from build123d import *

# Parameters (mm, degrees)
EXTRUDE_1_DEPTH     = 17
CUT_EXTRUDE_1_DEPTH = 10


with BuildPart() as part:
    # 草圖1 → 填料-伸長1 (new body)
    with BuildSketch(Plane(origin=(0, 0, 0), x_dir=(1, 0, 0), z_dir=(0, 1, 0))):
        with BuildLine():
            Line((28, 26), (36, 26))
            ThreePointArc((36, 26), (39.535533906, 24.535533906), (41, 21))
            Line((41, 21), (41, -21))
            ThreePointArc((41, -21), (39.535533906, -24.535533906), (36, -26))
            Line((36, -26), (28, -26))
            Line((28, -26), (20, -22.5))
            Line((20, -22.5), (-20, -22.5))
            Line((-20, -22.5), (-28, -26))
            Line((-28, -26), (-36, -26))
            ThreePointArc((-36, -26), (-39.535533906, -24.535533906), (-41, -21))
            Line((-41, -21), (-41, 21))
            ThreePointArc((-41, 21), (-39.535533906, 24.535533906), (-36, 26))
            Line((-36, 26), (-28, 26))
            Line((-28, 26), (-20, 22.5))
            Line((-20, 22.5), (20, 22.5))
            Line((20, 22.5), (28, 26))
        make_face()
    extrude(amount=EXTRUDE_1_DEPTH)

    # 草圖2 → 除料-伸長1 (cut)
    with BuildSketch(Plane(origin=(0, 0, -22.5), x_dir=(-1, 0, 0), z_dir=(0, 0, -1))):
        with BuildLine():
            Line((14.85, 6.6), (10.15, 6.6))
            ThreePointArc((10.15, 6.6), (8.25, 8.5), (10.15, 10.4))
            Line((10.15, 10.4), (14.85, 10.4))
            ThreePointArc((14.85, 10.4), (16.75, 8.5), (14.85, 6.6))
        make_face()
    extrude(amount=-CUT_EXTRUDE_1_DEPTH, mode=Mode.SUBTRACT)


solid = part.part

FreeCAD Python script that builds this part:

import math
import FreeCAD as App
import Part
import Sketcher

V = App.Vector
Q = App.Units.Quantity

doc = App.newDocument("Part")
body = doc.addObject("PartDesign::Body", "Body")

# Sketch on XZ plane
sketch1 = body.newObject("Sketcher::SketchObject", "Sketch")
sketch1.AttachmentSupport = (doc.getObject("XZ_Plane"), [""])
sketch1.MapMode = "FlatFace"
sketch1.addGeometry([
    Part.LineSegment(V(36, -26, 0), V(28, -26, 0)),  # 0
    Part.LineSegment(V(28, -26, 0), V(20, -22, 0)),  # 1
    Part.LineSegment(V(20, -22, 0), V(-20, -22, 0)),  # 2
    Part.LineSegment(V(-20, -22, 0), V(-28, -26, 0)),  # 3
    Part.LineSegment(V(-28, -26, 0), V(-36, -26, 0)),  # 4
    Part.ArcOfCircle(Part.Circle(V(-36, -21, 0), V(0, 0, 1), 5), math.radians(180), math.radians(270)),  # 5
    Part.LineSegment(V(-41, -21, 0), V(-41, 21, 0)),  # 6
    Part.ArcOfCircle(Part.Circle(V(-36, 21, 0), V(0, 0, 1), 5), math.radians(90), math.radians(180)),  # 7
    Part.LineSegment(V(-36, 26, 0), V(-28, 26, 0)),  # 8
    Part.LineSegment(V(-28, 26, 0), V(-20, 22, 0)),  # 9
    Part.LineSegment(V(-20, 22, 0), V(20, 22, 0)),  # 10
    Part.LineSegment(V(20, 22, 0), V(28, 26, 0)),  # 11
    Part.LineSegment(V(28, 26, 0), V(36, 26, 0)),  # 12
    Part.ArcOfCircle(Part.Circle(V(36, 21, 0), V(0, 0, 1), 5), math.radians(0), math.radians(90)),  # 13
    Part.LineSegment(V(41, 21, 0), V(41, -21, 0)),  # 14
    Part.ArcOfCircle(Part.Circle(V(36, -21, 0), V(0, 0, 1), 5), math.radians(-90), math.radians(0)),  # 15
], False)
sketch1.addConstraint([
    Sketcher.Constraint("Coincident", 0, 2, 1, 1),
    Sketcher.Constraint("Coincident", 1, 2, 2, 1),
    Sketcher.Constraint("Coincident", 2, 2, 3, 1),
    Sketcher.Constraint("Coincident", 3, 2, 4, 1),
    Sketcher.Constraint("Tangent", 4, 2, 5, 2),
    Sketcher.Constraint("Tangent", 5, 1, 6, 1),
    Sketcher.Constraint("Tangent", 6, 2, 7, 2),
    Sketcher.Constraint("Tangent", 7, 1, 8, 1),
    Sketcher.Constraint("Coincident", 8, 2, 9, 1),
    Sketcher.Constraint("Coincident", 9, 2, 10, 1),
    Sketcher.Constraint("Coincident", 10, 2, 11, 1),
    Sketcher.Constraint("Coincident", 11, 2, 12, 1),
    Sketcher.Constraint("Tangent", 12, 2, 13, 2),
    Sketcher.Constraint("Tangent", 13, 1, 14, 1),
    Sketcher.Constraint("Tangent", 14, 2, 15, 2),
    Sketcher.Constraint("Tangent", 15, 1, 0, 1),
    Sketcher.Constraint("Horizontal", 0),
    Sketcher.Constraint("Horizontal", 2),
    Sketcher.Constraint("Horizontal", 4),
    Sketcher.Constraint("Vertical", 6),
    Sketcher.Constraint("Horizontal", 8),
    Sketcher.Constraint("Horizontal", 10),
    Sketcher.Constraint("Horizontal", 12),
    Sketcher.Constraint("Vertical", 14),
    Sketcher.Constraint("Equal", 5, 7),
    Sketcher.Constraint("Equal", 7, 13),
    Sketcher.Constraint("Equal", 13, 15),
    Sketcher.Constraint("Symmetric", 5, 3, 13, 3, -1, 1),
    Sketcher.Constraint("Symmetric", 0, 2, 8, 2, -1, 1),
    Sketcher.Constraint("Symmetric", 1, 2, 9, 2, -1, 1),
    Sketcher.Constraint("Symmetric", 0, 2, 3, 2, -2),
    Sketcher.Constraint("Parallel", 3, 11),
    Sketcher.Constraint("Vertical", 2, 2, 9, 2),
    Sketcher.Constraint("Vertical", 1, 2, 10, 2),
    Sketcher.Constraint("Radius", 5, Q("5 mm")),
    Sketcher.Constraint("DistanceX", 0, 2, 0, 1, Q("8 mm")),
    Sketcher.Constraint("DistanceX", 2, 2, 2, 1, Q("40 mm")),
    Sketcher.Constraint("DistanceY", 6, 1, 6, 2, Q("42 mm")),
    Sketcher.Constraint("DistanceX", 5, 3, -1, 1, Q("36 mm")),
    Sketcher.Constraint("DistanceY", 2, 2, 9, 2, Q("45 mm")),
])
pad1 = body.newObject("PartDesign::Pad", "Pad")
pad1.Profile = sketch1
pad1.Length = 17
pad1.Reversed = True

# Sketch on XY plane
sketch2 = body.newObject("Sketcher::SketchObject", "Sketch001")
sketch2.AttachmentSupport = (doc.getObject("XY_Plane"), [""])
sketch2.MapMode = "FlatFace"
sketch2.AttachmentOffset = App.Placement(V(0, 0, -22.5), App.Rotation())
sketch2.addGeometry([
    Part.LineSegment(V(-10.2, 6.6, 0), V(-14.8, 6.6, 0)),
    Part.ArcOfCircle(Part.Circle(V(-14.8, 8.5, 0), V(0, 0, 1), 1.9), math.radians(90), math.radians(270)),
    Part.LineSegment(V(-14.8, 10.4, 0), V(-10.2, 10.4, 0)),
    Part.ArcOfCircle(Part.Circle(V(-10.2, 8.5, 0), V(0, 0, 1), 1.9), math.radians(-90), math.radians(90)),
], False)
sketch2.addConstraint([
    Sketcher.Constraint("Tangent", 0, 2, 1, 2),
    Sketcher.Constraint("Tangent", 1, 1, 2, 1),
    Sketcher.Constraint("Tangent", 2, 2, 3, 2),
    Sketcher.Constraint("Tangent", 3, 1, 0, 1),
    Sketcher.Constraint("Horizontal", 0),
    Sketcher.Constraint("Horizontal", 2),
    Sketcher.Constraint("Radius", 1, Q("1.9 mm")),
    Sketcher.Constraint("DistanceX", 0, 2, 0, 1, Q("4.7 mm")),
    Sketcher.Constraint("DistanceY", -1, 1, 1, 3, Q("8.5 mm")),
    Sketcher.Constraint("DistanceX", 1, 3, -1, 1, Q("14.85 mm")),
])
pocket1 = body.newObject("PartDesign::Pocket", "Pocket")
pocket1.Profile = sketch2
pocket1.Length = 10
pocket1.Reversed = True

doc.recompute()
